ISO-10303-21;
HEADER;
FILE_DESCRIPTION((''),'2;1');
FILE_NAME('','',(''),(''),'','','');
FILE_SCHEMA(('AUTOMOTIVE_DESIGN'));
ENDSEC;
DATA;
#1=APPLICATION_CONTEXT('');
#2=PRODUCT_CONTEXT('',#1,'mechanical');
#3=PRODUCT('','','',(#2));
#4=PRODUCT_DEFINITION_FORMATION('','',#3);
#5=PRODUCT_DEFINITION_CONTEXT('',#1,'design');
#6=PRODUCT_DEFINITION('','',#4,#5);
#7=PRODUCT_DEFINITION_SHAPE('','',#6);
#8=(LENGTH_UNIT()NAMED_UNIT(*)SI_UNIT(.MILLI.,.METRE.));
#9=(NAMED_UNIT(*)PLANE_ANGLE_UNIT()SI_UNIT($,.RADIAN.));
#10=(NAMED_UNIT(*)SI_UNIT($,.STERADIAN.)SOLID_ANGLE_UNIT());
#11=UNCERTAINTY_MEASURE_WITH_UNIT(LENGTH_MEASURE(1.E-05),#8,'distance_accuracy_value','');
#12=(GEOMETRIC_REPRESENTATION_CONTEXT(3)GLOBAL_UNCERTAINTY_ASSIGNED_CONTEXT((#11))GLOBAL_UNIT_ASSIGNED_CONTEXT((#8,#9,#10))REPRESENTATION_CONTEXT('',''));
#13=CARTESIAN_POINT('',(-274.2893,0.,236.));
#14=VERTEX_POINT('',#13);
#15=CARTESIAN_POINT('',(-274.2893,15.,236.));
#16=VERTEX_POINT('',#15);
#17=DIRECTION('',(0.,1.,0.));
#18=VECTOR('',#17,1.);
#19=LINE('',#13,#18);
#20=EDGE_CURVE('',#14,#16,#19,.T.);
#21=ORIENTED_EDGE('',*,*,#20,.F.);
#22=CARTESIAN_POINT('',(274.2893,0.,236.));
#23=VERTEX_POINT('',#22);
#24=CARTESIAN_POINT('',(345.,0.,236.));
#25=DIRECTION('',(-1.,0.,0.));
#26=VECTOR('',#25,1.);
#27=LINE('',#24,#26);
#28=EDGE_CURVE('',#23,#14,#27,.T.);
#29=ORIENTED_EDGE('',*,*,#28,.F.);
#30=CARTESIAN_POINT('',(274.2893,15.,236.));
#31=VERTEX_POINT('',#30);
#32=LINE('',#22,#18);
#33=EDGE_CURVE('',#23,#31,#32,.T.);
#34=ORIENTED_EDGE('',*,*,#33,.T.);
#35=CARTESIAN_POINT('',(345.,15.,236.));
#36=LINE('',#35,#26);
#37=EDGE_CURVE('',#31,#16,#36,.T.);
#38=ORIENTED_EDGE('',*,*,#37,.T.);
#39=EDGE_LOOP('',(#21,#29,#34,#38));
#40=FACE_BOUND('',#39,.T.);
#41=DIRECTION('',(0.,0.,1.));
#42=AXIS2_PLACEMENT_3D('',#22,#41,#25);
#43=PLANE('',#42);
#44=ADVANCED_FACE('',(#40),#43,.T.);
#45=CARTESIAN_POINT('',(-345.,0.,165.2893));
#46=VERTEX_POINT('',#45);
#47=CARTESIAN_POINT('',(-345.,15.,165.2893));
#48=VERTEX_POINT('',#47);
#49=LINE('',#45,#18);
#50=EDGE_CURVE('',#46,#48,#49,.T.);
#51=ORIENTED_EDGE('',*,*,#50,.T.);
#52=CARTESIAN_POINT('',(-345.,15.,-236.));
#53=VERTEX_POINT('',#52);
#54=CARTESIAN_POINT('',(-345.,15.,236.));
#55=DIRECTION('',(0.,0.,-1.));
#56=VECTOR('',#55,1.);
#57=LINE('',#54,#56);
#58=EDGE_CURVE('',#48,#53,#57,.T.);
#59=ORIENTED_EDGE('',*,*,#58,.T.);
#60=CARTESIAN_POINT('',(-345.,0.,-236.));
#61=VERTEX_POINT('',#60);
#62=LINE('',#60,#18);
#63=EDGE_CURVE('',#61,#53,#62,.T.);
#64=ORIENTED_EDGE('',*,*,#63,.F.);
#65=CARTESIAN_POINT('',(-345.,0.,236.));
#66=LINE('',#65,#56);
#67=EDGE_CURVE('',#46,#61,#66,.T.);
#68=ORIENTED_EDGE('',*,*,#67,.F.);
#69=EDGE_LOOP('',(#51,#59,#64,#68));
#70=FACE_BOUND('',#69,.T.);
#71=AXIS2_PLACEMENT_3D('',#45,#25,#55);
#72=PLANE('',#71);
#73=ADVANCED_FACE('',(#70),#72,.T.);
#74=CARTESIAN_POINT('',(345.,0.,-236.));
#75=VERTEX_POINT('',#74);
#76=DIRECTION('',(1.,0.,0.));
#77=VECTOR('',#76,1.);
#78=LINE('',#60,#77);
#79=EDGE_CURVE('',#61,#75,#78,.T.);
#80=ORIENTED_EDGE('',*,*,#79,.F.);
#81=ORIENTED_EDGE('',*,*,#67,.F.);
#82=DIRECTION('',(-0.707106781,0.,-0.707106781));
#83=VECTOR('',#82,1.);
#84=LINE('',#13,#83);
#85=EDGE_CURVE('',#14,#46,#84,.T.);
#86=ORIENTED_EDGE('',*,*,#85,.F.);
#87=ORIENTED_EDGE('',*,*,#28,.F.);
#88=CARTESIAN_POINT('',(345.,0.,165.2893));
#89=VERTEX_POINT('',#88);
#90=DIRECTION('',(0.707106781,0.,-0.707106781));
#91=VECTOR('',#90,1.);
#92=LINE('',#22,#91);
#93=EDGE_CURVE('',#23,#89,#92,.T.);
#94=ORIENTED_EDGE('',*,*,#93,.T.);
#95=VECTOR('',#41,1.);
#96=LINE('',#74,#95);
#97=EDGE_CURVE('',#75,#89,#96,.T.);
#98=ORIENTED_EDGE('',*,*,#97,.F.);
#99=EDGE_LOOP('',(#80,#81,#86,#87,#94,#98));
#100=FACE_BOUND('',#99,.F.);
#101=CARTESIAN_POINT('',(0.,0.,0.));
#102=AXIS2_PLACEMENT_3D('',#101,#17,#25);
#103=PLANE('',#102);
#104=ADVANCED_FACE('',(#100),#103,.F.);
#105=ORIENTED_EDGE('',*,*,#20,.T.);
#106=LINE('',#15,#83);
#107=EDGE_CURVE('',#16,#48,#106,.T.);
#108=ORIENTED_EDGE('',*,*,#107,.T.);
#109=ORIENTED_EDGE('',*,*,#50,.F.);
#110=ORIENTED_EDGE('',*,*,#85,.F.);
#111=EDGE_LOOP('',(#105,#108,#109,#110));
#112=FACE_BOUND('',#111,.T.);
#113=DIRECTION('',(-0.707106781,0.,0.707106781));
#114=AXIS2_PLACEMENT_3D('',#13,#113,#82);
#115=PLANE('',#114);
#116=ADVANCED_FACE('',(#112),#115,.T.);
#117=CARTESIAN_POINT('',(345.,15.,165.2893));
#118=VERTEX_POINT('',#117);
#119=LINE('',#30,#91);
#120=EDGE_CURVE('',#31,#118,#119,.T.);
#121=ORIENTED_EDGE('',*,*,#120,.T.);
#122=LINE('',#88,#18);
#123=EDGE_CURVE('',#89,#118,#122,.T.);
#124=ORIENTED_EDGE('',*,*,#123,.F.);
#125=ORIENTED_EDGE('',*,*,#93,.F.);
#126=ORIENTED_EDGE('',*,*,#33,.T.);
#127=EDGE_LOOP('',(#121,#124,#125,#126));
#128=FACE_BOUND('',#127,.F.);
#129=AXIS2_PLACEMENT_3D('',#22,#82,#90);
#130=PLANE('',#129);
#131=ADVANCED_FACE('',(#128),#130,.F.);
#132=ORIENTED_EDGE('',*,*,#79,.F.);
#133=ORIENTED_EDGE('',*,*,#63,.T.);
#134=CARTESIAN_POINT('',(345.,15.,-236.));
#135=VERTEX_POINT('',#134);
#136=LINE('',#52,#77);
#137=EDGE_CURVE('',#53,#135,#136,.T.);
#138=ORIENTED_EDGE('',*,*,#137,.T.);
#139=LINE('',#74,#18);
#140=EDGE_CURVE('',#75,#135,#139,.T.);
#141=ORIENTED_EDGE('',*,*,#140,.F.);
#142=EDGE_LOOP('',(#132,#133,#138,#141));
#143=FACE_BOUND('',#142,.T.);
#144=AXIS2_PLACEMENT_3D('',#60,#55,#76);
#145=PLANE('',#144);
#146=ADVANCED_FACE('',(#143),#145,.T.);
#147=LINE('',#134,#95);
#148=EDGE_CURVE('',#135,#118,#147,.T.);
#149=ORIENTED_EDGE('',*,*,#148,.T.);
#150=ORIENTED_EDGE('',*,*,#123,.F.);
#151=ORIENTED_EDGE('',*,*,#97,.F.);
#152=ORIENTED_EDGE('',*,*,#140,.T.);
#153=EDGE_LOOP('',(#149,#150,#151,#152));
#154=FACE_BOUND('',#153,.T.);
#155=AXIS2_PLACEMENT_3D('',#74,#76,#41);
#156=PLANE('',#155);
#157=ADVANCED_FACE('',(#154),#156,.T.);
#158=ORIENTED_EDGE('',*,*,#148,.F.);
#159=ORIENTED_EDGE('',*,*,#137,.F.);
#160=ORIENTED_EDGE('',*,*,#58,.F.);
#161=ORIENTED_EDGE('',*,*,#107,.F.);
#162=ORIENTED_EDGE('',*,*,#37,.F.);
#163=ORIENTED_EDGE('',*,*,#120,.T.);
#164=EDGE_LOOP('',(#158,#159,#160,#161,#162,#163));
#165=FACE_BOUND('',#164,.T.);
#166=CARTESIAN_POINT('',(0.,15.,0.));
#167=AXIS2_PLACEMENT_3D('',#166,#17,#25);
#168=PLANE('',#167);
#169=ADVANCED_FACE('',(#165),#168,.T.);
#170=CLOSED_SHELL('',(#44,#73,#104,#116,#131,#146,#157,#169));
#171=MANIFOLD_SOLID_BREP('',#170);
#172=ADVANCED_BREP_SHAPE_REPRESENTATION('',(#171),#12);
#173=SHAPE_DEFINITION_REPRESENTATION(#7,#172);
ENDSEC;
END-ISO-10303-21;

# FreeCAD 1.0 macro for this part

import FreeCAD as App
import Part
import Sketcher

V = App.Vector
Q = App.Units.Quantity

doc = App.newDocument("Part")
body = doc.addObject("PartDesign::Body", "Body")

# Sketch on XZ plane
sketch1 = body.newObject("Sketcher::SketchObject", "Sketch")
sketch1.AttachmentSupport = (doc.getObject("XZ_Plane"), [""])
sketch1.MapMode = "FlatFace"
sketch1.addGeometry([
    Part.LineSegment(V(345, -236, 0), V(-345, -236, 0)),  # 0
    Part.LineSegment(V(-345, -236, 0), V(-345, 165.2893, 0)),  # 1
    Part.LineSegment(V(-345, 165.2893, 0), V(-274.2893, 236, 0)),  # 2
    Part.LineSegment(V(-274.2893, 236, 0), V(274.2893, 236, 0)),  # 3
    Part.LineSegment(V(274.2893, 236, 0), V(345, 165.2893, 0)),  # 4
    Part.LineSegment(V(345, 165.2893, 0), V(345, -236, 0)),  # 5
], False)
sketch1.addConstraint([
    Sketcher.Constraint("Coincident", 0, 2, 1, 1),
    Sketcher.Constraint("Coincident", 1, 2, 2, 1),
    Sketcher.Constraint("Coincident", 2, 2, 3, 1),
    Sketcher.Constraint("Coincident", 3, 2, 4, 1),
    Sketcher.Constraint("Coincident", 4, 2, 5, 1),
    Sketcher.Constraint("Coincident", 5, 2, 0, 1),
    Sketcher.Constraint("Horizontal", 0),
    Sketcher.Constraint("Vertical", 1),
    Sketcher.Constraint("Horizontal", 3),
    Sketcher.Constraint("Vertical", 5),
    Sketcher.Constraint("Symmetric", 1, 2, 4, 2, -2),
    Sketcher.Constraint("Perpendicular", 2, 4),
    Sketcher.Constraint("Equal", 2, 4),
    Sketcher.Constraint("DistanceX", 0, 2, 0, 1, Q("690 mm")),
    Sketcher.Constraint("Distance", 2, Q("100 mm")),
    Sketcher.Constraint("DistanceY", 0, 2, 2, 2, Q("472 mm")),
    Sketcher.Constraint("DistanceY", 0, 2, -1, 1, Q("236 mm")),
])
pad1 = body.newObject("PartDesign::Pad", "Pad")
pad1.Profile = sketch1
pad1.Length = 15
pad1.Reversed = True

doc.recompute()
